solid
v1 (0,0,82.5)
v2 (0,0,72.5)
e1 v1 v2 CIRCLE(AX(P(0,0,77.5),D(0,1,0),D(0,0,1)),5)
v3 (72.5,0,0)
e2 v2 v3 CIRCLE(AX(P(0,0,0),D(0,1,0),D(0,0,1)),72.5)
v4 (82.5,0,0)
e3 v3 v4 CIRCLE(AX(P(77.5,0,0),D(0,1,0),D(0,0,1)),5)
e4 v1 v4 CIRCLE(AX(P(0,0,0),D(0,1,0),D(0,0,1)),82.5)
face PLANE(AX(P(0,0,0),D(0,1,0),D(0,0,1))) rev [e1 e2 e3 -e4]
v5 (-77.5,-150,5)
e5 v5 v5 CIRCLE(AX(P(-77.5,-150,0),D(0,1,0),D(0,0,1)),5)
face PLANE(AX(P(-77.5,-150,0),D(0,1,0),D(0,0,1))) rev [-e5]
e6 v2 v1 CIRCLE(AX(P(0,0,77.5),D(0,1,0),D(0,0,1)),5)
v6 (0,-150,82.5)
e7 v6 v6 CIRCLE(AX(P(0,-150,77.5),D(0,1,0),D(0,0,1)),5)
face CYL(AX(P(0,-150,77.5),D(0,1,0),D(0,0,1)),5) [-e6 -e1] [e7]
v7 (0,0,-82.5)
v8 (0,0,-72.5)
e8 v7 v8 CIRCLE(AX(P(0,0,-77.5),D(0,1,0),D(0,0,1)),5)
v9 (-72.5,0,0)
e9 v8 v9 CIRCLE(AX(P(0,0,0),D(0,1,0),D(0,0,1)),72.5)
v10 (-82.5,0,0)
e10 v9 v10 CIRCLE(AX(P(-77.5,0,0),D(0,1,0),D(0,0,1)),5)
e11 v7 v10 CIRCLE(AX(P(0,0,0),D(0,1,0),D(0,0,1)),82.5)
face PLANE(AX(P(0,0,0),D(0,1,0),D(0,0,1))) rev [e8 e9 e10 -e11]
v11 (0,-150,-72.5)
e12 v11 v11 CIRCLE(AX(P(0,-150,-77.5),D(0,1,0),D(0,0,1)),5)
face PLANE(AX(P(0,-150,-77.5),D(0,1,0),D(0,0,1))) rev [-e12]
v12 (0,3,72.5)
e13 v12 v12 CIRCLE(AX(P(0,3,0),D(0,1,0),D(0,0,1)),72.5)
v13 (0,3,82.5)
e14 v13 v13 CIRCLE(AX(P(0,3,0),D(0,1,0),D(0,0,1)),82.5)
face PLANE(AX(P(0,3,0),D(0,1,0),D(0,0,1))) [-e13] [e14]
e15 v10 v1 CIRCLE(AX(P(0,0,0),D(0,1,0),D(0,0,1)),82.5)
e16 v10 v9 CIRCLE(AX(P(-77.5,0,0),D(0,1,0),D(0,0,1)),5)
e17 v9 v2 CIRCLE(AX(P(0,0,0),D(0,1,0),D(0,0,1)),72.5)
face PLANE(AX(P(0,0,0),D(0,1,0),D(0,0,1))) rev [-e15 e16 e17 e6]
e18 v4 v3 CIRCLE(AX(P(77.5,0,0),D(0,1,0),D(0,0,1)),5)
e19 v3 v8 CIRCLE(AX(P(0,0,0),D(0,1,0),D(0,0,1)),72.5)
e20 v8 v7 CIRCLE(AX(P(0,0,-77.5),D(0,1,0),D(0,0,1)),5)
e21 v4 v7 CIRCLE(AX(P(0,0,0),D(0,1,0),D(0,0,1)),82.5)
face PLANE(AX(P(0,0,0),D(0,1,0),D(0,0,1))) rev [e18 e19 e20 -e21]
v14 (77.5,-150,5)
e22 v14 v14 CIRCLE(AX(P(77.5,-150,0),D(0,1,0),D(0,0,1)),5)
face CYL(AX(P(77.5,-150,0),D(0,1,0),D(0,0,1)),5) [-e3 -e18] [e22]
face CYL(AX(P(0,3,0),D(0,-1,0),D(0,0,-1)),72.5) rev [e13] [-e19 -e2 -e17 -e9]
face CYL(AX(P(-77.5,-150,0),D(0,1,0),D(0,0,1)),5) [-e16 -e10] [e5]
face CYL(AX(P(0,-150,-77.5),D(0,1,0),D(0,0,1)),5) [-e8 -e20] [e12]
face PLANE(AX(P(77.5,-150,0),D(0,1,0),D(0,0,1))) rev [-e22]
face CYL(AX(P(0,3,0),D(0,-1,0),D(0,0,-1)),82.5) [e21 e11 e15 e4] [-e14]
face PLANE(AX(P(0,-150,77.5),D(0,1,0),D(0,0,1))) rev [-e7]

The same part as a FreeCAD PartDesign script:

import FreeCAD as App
import Part
import Sketcher

doc = App.newDocument("Part")
body = doc.addObject("PartDesign::Body", "Body")

sketch1 = body.newObject("Sketcher::SketchObject", "Sketch")
sketch1.AttachmentSupport = (doc.getObject("XZ_Plane"), [""])
sketch1.MapMode = "FlatFace"
sketch1.addGeometry([
    Part.Circle(App.Vector(0, 0, 0), App.Vector(0, 0, 1), 82),
    Part.Circle(App.Vector(0, 0, 0), App.Vector(0, 0, 1), 72),
], False)
sketch1.addConstraint([
    Sketcher.Constraint("Coincident", 0, 3, -1, 1),
    Sketcher.Constraint("Coincident", 1, 3, -1, 1),
    Sketcher.Constraint("Diameter", 0, 165.0),
    Sketcher.Constraint("Diameter", 1, 145.0),
])
pad1 = body.newObject("PartDesign::Pad", "Pad")
pad1.Profile = sketch1
pad1.Length = 3
pad1.Reversed = True

sketch2 = body.newObject("Sketcher::SketchObject", "Sketch001")
sketch2.AttachmentSupport = (doc.getObject("XZ_Plane"), [""])
sketch2.MapMode = "FlatFace"
sketch2.addGeometry([
    Part.Circle(App.Vector(-78, 0, 0), App.Vector(0, 0, 1), 5),
    Part.Circle(App.Vector(0, 78, 0), App.Vector(0, 0, 1), 5),
    Part.Circle(App.Vector(78, 0, 0), App.Vector(0, 0, 1), 5),
    Part.Circle(App.Vector(0, -78, 0), App.Vector(0, 0, 1), 5),
], False)
sketch2.addConstraint([
    Sketcher.Constraint("Equal", 0, 1),
    Sketcher.Constraint("Equal", 1, 2),
    Sketcher.Constraint("Equal", 2, 3),
    Sketcher.Constraint("Symmetric", 0, 3, 2, 3, -1, 1),
    Sketcher.Constraint("Symmetric", 1, 3, 3, 3, -1, 1),
    Sketcher.Constraint("PointOnObject", 0, 3, -1),
    Sketcher.Constraint("PointOnObject", 1, 3, -2),
    Sketcher.Constraint("Diameter", 0, 10.0),
    Sketcher.Constraint("DistanceX", 0, 3, 2, 3, 155.0),
    Sketcher.Constraint("DistanceY", 3, 3, 1, 3, 155.0),
])
pad2 = body.newObject("PartDesign::Pad", "Pad001")
pad2.Profile = sketch2
pad2.Length = 150

doc.recompute()
